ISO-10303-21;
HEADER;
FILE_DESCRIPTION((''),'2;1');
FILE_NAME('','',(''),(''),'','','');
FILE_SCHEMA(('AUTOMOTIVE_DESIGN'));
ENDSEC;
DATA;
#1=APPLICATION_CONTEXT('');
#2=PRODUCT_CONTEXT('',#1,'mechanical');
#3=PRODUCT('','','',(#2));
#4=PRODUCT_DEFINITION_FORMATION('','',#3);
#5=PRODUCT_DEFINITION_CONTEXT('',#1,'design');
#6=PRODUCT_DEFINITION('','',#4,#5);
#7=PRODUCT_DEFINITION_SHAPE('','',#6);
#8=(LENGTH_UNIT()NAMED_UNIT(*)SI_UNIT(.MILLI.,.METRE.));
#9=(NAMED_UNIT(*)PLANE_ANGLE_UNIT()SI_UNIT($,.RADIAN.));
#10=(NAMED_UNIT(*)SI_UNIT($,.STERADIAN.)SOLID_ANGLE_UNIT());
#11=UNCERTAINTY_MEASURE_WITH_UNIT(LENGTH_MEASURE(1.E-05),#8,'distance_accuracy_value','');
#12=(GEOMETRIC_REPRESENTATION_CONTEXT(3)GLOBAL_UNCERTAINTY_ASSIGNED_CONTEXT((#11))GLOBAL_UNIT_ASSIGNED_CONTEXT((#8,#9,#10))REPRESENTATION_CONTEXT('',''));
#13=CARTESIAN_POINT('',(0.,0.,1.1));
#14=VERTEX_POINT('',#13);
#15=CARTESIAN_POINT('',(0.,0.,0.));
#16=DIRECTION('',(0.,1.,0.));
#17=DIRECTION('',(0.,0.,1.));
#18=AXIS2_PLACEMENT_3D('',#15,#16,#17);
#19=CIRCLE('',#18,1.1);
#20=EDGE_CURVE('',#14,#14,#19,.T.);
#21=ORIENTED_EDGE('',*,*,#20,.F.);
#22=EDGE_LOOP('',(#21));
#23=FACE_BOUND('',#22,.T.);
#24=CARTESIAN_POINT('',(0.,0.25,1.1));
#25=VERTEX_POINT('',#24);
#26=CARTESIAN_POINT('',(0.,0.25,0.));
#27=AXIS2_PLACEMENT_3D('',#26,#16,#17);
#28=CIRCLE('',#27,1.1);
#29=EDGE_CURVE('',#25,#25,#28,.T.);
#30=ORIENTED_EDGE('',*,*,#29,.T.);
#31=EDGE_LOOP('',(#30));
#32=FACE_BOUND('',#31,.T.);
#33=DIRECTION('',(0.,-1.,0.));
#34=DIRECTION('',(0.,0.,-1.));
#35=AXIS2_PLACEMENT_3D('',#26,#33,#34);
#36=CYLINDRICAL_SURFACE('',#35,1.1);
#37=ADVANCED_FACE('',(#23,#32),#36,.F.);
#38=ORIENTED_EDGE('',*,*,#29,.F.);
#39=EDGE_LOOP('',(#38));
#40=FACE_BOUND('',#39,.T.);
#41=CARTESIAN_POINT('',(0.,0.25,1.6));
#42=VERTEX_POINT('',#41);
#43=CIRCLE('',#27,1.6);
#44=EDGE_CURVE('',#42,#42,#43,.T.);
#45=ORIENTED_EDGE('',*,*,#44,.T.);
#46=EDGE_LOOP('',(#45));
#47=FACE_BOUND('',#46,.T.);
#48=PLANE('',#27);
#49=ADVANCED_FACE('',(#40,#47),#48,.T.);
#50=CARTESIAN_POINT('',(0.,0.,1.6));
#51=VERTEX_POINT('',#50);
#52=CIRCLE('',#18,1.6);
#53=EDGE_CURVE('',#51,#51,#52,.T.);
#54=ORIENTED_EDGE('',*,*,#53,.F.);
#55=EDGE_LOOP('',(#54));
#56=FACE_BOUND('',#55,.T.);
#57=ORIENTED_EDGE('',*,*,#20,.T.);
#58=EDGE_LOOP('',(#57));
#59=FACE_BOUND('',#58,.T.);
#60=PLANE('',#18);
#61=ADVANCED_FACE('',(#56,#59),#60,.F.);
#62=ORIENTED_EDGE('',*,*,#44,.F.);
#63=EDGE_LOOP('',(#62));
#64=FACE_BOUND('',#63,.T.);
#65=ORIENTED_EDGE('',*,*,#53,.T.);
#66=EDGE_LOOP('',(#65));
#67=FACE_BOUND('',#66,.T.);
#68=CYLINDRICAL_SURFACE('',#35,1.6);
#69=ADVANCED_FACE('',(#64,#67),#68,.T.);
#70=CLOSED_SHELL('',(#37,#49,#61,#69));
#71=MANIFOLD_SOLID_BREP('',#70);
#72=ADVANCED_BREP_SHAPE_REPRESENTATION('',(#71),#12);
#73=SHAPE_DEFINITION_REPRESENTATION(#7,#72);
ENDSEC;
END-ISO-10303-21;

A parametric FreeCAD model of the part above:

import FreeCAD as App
import Part
import Sketcher
from FreeCAD import Vector

doc = App.newDocument("Part")
body = doc.addObject("PartDesign::Body", "Body")

# Sketch on XZ plane
sketch1 = doc.addObject("Sketcher::SketchObject", "Sketch")
body.addObject(sketch1)
sketch1.AttachmentSupport = (doc.XZ_Plane, [""])
sketch1.MapMode = "FlatFace"
sketch1.addGeometry([
    Part.Circle(Vector(0, 0, 0), Vector(0, 0, 1), 1.6),
    Part.Circle(Vector(0, 0, 0), Vector(0, 0, 1), 1.1),
], False)
sketch1.addConstraint([
    Sketcher.Constraint("Coincident", 0, 3, -1, 1),
    Sketcher.Constraint("Coincident", 1, 3, -1, 1),
    Sketcher.Constraint("Diameter", 0, 3.2),
    Sketcher.Constraint("Diameter", 1, 2.2),
])
pad1 = doc.addObject("PartDesign::Pad", "Pad")
body.addObject(pad1)
pad1.Profile = sketch1
pad1.Length = 0.25
pad1.Reversed = True

doc.recompute()
